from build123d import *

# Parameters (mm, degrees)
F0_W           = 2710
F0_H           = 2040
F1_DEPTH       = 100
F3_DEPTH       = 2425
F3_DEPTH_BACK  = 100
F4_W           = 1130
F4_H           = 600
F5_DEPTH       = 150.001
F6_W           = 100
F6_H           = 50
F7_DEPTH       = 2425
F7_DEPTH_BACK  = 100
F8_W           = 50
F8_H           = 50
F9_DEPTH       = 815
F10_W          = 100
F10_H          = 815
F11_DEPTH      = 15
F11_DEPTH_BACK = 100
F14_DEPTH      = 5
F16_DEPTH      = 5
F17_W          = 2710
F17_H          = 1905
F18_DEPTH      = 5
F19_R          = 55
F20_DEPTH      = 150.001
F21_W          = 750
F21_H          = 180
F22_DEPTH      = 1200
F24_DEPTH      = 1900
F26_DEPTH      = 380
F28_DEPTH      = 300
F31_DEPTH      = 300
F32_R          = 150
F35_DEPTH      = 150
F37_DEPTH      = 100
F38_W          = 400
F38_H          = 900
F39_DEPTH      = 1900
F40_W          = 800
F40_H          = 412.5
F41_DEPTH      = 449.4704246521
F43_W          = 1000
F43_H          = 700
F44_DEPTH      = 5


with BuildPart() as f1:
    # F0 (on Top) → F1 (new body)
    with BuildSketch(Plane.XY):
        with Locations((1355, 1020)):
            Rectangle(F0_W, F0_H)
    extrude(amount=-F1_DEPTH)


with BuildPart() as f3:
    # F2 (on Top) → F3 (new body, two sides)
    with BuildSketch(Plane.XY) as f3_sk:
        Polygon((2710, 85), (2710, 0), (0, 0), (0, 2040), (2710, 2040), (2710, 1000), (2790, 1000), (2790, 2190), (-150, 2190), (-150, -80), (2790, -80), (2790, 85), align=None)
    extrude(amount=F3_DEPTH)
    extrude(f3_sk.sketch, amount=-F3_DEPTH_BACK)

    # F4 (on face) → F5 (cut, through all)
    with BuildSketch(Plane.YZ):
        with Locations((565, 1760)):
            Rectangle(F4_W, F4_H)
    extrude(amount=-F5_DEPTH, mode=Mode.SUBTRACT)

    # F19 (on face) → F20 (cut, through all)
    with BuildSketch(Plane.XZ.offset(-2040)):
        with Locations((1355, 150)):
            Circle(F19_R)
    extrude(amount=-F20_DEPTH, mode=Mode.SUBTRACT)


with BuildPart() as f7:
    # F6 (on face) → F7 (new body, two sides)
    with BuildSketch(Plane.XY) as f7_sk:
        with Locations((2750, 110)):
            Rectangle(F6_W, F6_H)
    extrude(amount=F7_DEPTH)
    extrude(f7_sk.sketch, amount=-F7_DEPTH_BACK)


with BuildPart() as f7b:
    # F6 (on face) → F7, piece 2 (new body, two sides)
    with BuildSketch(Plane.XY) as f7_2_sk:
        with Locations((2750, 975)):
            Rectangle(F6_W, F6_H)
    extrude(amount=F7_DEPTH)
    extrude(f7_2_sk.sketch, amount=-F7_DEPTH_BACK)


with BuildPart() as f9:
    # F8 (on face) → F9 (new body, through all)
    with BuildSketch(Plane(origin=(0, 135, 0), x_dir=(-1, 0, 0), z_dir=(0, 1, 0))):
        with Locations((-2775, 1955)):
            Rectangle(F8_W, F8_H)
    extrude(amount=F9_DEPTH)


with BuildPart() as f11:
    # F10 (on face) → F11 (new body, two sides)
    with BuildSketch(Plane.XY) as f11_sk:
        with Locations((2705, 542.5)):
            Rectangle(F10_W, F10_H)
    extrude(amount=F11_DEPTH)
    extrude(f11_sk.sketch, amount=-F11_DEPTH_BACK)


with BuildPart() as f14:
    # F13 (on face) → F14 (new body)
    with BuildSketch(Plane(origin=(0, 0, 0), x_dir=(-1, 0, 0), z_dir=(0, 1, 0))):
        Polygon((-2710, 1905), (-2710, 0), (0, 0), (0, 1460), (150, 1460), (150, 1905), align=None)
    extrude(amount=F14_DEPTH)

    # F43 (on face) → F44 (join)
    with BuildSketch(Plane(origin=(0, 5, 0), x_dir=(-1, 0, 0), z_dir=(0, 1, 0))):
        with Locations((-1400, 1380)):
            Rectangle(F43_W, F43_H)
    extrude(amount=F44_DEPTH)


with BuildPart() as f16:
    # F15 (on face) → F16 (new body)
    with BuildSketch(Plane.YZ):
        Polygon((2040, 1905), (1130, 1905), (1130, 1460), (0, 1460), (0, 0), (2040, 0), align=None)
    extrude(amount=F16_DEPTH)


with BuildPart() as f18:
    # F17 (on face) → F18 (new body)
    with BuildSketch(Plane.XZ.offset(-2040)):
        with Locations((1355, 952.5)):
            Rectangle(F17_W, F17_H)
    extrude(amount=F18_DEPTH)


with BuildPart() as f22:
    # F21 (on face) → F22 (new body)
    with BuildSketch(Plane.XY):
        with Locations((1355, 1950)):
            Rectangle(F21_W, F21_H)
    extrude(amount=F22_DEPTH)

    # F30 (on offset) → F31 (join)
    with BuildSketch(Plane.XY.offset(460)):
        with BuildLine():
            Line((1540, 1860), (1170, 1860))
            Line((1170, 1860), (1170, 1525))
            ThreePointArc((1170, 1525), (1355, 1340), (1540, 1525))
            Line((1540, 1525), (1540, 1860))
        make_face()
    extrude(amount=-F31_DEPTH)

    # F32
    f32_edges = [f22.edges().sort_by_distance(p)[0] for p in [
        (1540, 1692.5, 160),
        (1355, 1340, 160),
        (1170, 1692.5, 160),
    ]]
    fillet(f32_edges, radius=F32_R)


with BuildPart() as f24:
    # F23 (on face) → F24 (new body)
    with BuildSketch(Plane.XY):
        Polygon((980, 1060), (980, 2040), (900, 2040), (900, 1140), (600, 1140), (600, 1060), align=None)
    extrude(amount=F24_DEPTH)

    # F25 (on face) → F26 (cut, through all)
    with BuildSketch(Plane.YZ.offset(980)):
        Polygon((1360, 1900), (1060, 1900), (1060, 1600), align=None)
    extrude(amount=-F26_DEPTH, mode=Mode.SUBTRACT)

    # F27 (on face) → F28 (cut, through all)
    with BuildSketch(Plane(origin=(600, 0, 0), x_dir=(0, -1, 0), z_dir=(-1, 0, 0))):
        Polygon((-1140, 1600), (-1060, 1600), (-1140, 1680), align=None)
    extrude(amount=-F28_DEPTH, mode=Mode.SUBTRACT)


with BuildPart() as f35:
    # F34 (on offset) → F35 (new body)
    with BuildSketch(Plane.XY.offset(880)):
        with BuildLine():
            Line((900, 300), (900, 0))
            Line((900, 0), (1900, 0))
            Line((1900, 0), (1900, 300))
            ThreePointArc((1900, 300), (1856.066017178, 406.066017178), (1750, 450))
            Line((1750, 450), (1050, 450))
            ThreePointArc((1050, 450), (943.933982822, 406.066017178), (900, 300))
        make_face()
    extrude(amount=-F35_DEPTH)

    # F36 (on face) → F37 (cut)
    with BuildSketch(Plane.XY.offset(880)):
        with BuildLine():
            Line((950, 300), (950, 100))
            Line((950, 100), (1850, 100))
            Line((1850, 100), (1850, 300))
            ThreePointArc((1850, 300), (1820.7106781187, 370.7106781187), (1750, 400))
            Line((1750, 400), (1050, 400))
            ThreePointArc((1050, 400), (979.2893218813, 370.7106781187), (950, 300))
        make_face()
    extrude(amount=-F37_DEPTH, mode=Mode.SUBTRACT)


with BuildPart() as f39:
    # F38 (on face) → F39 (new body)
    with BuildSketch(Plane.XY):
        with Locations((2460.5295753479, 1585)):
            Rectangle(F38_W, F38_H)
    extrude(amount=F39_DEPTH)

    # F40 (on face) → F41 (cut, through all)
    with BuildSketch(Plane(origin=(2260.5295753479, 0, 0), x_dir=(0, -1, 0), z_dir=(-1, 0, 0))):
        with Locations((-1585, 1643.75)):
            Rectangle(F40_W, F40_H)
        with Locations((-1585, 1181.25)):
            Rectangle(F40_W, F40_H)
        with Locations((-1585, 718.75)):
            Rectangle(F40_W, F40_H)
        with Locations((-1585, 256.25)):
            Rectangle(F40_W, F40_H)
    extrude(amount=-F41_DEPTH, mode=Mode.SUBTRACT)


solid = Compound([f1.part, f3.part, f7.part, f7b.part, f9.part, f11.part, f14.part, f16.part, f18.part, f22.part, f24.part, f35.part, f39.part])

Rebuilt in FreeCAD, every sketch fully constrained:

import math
import FreeCAD as App
import Part
import Sketcher

V = App.Vector
Q = App.Units.Quantity


def edges_at(feature, points):
    """Names of the edges that pass closest to the given points."""
    edges = feature.Shape.Edges
    near = lambda p: min(range(len(edges)), key=lambda i: edges[i].distToShape(Part.Vertex(*p))[0])
    return sorted({f"Edge{near(p) + 1}" for p in points})

doc = App.newDocument("Part")
body = doc.addObject("PartDesign::Body", "Body")

sketch1 = body.newObject("Sketcher::SketchObject", "Sketch")
sketch1.AttachmentSupport = (doc.getObject("XY_Plane"), [""])
sketch1.MapMode = "FlatFace"
sketch1.addGeometry(Part.LineSegment(V(0, 2040, 0), V(0, 0, 0)), False)
sketch1.addGeometry(Part.LineSegment(V(0, 0, 0), V(2710, 0, 0)), False)
sketch1.addGeometry(Part.LineSegment(V(2710, 0, 0), V(2710, 2040, 0)), False)
sketch1.addGeometry(Part.LineSegment(V(2710, 2040, 0), V(0, 2040, 0)), False)
sketch1.addConstraint(Sketcher.Constraint("Coincident", 0, 2, 1, 1))
sketch1.addConstraint(Sketcher.Constraint("Coincident", 1, 2, 2, 1))
sketch1.addConstraint(Sketcher.Constraint("Coincident", 2, 2, 3, 1))
sketch1.addConstraint(Sketcher.Constraint("Coincident", 3, 2, 0, 1))
sketch1.addConstraint(Sketcher.Constraint("Vertical", 0))
sketch1.addConstraint(Sketcher.Constraint("Horizontal", 1))
sketch1.addConstraint(Sketcher.Constraint("Vertical", 2))
sketch1.addConstraint(Sketcher.Constraint("Horizontal", 3))
sketch1.addConstraint(Sketcher.Constraint("Coincident", 0, 2, -1, 1))
sketch1.addConstraint(Sketcher.Constraint("DistanceX", 1, 1, 1, 2, Q("2710 mm")))
sketch1.addConstraint(Sketcher.Constraint("DistanceY", 0, 2, 0, 1, Q("2040 mm")))
pad1 = body.newObject("PartDesign::Pad", "Pad")
pad1.Profile = sketch1
pad1.Length = 100
pad1.Reversed = True
body2 = doc.addObject("PartDesign::Body", "Body001")

sketch2 = body2.newObject("Sketcher::SketchObject", "Sketch001")
sketch2.AttachmentSupport = (doc.getObject("XY_Plane001"), [""])
sketch2.MapMode = "FlatFace"
sketch2.addGeometry(Part.LineSegment(V(2710, 85, 0), V(2710, 0, 0)), False)
sketch2.addGeometry(Part.LineSegment(V(2710, 0, 0), V(0, 0, 0)), False)
sketch2.addGeometry(Part.LineSegment(V(0, 0, 0), V(0, 2040, 0)), False)
sketch2.addGeometry(Part.LineSegment(V(0, 2040, 0), V(2710, 2040, 0)), False)
sketch2.addGeometry(Part.LineSegment(V(2710, 2040, 0), V(2710, 1000, 0)), False)
sketch2.addGeometry(Part.LineSegment(V(2710, 1000, 0), V(2790, 1000, 0)), False)
sketch2.addGeometry(Part.LineSegment(V(2790, 1000, 0), V(2790, 2190, 0)), False)
sketch2.addGeometry(Part.LineSegment(V(2790, 2190, 0), V(-150, 2190, 0)), False)
sketch2.addGeometry(Part.LineSegment(V(-150, 2190, 0), V(-150, -80, 0)), False)
sketch2.addGeometry(Part.LineSegment(V(-150, -80, 0), V(2790, -80, 0)), False)
sketch2.addGeometry(Part.LineSegment(V(2790, -80, 0), V(2790, 85, 0)), False)
sketch2.addGeometry(Part.LineSegment(V(2790, 85, 0), V(2710, 85, 0)), False)
sketch2.addConstraint(Sketcher.Constraint("Coincident", 0, 2, 1, 1))
sketch2.addConstraint(Sketcher.Constraint("Coincident", 1, 2, 2, 1))
sketch2.addConstraint(Sketcher.Constraint("Coincident", 2, 2, 3, 1))
sketch2.addConstraint(Sketcher.Constraint("Coincident", 3, 2, 4, 1))
sketch2.addConstraint(Sketcher.Constraint("Coincident", 4, 2, 5, 1))
sketch2.addConstraint(Sketcher.Constraint("Coincident", 5, 2, 6, 1))
sketch2.addConstraint(Sketcher.Constraint("Coincident", 6, 2, 7, 1))
sketch2.addConstraint(Sketcher.Constraint("Coincident", 7, 2, 8, 1))
sketch2.addConstraint(Sketcher.Constraint("Coincident", 8, 2, 9, 1))
sketch2.addConstraint(Sketcher.Constraint("Coincident", 9, 2, 10, 1))
sketch2.addConstraint(Sketcher.Constraint("Coincident", 10, 2, 11, 1))
sketch2.addConstraint(Sketcher.Constraint("Coincident", 11, 2, 0, 1))
sketch2.addConstraint(Sketcher.Constraint("Vertical", 0))
sketch2.addConstraint(Sketcher.Constraint("Horizontal", 1))
sketch2.addConstraint(Sketcher.Constraint("Vertical", 2))
sketch2.addConstraint(Sketcher.Constraint("Horizontal", 3))
sketch2.addConstraint(Sketcher.Constraint("Vertical", 4))
sketch2.addConstraint(Sketcher.Constraint("Horizontal", 5))
sketch2.addConstraint(Sketcher.Constraint("Vertical", 6))
sketch2.addConstraint(Sketcher.Constraint("Horizontal", 7))
sketch2.addConstraint(Sketcher.Constraint("Vertical", 8))
sketch2.addConstraint(Sketcher.Constraint("Horizontal", 9))
sketch2.addConstraint(Sketcher.Constraint("Vertical", 10))
sketch2.addConstraint(Sketcher.Constraint("Horizontal", 11))
sketch2.addConstraint(Sketcher.Constraint("Coincident", 1, 2, -1, 1))
sketch2.addConstraint(Sketcher.Constraint("Vertical", 0, 2, 3, 2))
sketch2.addConstraint(Sketcher.Constraint("Vertical", 6, 2, 9, 2))
sketch2.addConstraint(Sketcher.Constraint("DistanceX", 1, 2, 1, 1, Q("2710 mm")))
sketch2.addConstraint(Sketcher.Constraint("DistanceX", 5, 1, 5, 2, Q("80 mm")))
sketch2.addConstraint(Sketcher.Constraint("DistanceX", 7, 2, 7, 1, Q("2940 mm")))
sketch2.addConstraint(Sketcher.Constraint("DistanceY", 0, 2, 0, 1, Q("85 mm")))
sketch2.addConstraint(Sketcher.Constraint("DistanceY", 2, 1, 2, 2, Q("2040 mm")))
sketch2.addConstraint(Sketcher.Constraint("DistanceY", 4, 2, 4, 1, Q("1040 mm")))
sketch2.addConstraint(Sketcher.Constraint("DistanceY", 6, 1, 6, 2, Q("1190 mm")))
sketch2.addConstraint(Sketcher.Constraint("DistanceY", 8, 2, 8, 1, Q("2270 mm")))
pad2 = body2.newObject("PartDesign::Pad", "Pad001")
pad2.Profile = sketch2
pad2.Type = "TwoLengths"
pad2.Length = 2425
pad2.Length2 = 100

sketch3 = body2.newObject("Sketcher::SketchObject", "Sketch002")
sketch3.AttachmentSupport = (doc.getObject("YZ_Plane001"), [""])
sketch3.MapMode = "FlatFace"
sketch3.addGeometry(Part.LineSegment(V(0, 2060, 0), V(0, 1460, 0)), False)
sketch3.addGeometry(Part.LineSegment(V(0, 1460, 0), V(1130, 1460, 0)), False)
sketch3.addGeometry(Part.LineSegment(V(1130, 1460, 0), V(1130, 2060, 0)), False)
sketch3.addGeometry(Part.LineSegment(V(1130, 2060, 0), V(0, 2060, 0)), False)
sketch3.addConstraint(Sketcher.Constraint("Coincident", 0, 2, 1, 1))
sketch3.addConstraint(Sketcher.Constraint("Coincident", 1, 2, 2, 1))
sketch3.addConstraint(Sketcher.Constraint("Coincident", 2, 2, 3, 1))
sketch3.addConstraint(Sketcher.Constraint("Coincident", 3, 2, 0, 1))
sketch3.addConstraint(Sketcher.Constraint("Vertical", 0))
sketch3.addConstraint(Sketcher.Constraint("Horizontal", 1))
sketch3.addConstraint(Sketcher.Constraint("Vertical", 2))
sketch3.addConstraint(Sketcher.Constraint("Horizontal", 3))
sketch3.addConstraint(Sketcher.Constraint("PointOnObject", 0, 2, -2))
sketch3.addConstraint(Sketcher.Constraint("DistanceX", 1, 1, 1, 2, Q("1130 mm")))
sketch3.addConstraint(Sketcher.Constraint("DistanceY", 0, 2, 0, 1, Q("600 mm")))
sketch3.addConstraint(Sketcher.Constraint("DistanceY", -1, 1, 0, 2, Q("1460 mm")))
pocket1 = body2.newObject("PartDesign::Pocket", "Pocket")
pocket1.Profile = sketch3
pocket1.Type = "ThroughAll"

sketch4 = body2.newObject("Sketcher::SketchObject", "Sketch003")
sketch4.AttachmentSupport = (doc.getObject("XZ_Plane001"), [""])
sketch4.MapMode = "FlatFace"
sketch4.AttachmentOffset = App.Placement(V(0, 0, -2040), App.Rotation())
sketch4.addGeometry(Part.Circle(V(1355, 150, 0), V(0, 0, 1), 55), False)
sketch4.addConstraint(Sketcher.Constraint("Diameter", 0, Q("110 mm")))
sketch4.addConstraint(Sketcher.Constraint("DistanceX", -1, 1, 0, 3, Q("1355 mm")))
sketch4.addConstraint(Sketcher.Constraint("DistanceY", -1, 1, 0, 3, Q("150 mm")))
pocket2 = body2.newObject("PartDesign::Pocket", "Pocket001")
pocket2.Profile = sketch4
pocket2.Type = "ThroughAll"
body3 = doc.addObject("PartDesign::Body", "Body002")

sketch5 = body3.newObject("Sketcher::SketchObject", "Sketch004")
sketch5.AttachmentSupport = (doc.getObject("XY_Plane002"), [""])
sketch5.MapMode = "FlatFace"
sketch5.addGeometry(Part.LineSegment(V(2700, 135, 0), V(2700, 85, 0)), False)
sketch5.addGeometry(Part.LineSegment(V(2700, 85, 0), V(2800, 85, 0)), False)
sketch5.addGeometry(Part.LineSegment(V(2800, 85, 0), V(2800, 135, 0)), False)
sketch5.addGeometry(Part.LineSegment(V(2800, 135, 0), V(2700, 135, 0)), False)
sketch5.addConstraint(Sketcher.Constraint("Coincident", 0, 2, 1, 1))
sketch5.addConstraint(Sketcher.Constraint("Coincident", 1, 2, 2, 1))
sketch5.addConstraint(Sketcher.Constraint("Coincident", 2, 2, 3, 1))
sketch5.addConstraint(Sketcher.Constraint("Coincident", 3, 2, 0, 1))
sketch5.addConstraint(Sketcher.Constraint("Vertical", 0))
sketch5.addConstraint(Sketcher.Constraint("Horizontal", 1))
sketch5.addConstraint(Sketcher.Constraint("Vertical", 2))
sketch5.addConstraint(Sketcher.Constraint("Horizontal", 3))
sketch5.addConstraint(Sketcher.Constraint("DistanceX", 1, 1, 1, 2, Q("100 mm")))
sketch5.addConstraint(Sketcher.Constraint("DistanceY", 0, 2, 0, 1, Q("50 mm")))
sketch5.addConstraint(Sketcher.Constraint("DistanceX", -1, 1, 0, 2, Q("2700 mm")))
sketch5.addConstraint(Sketcher.Constraint("DistanceY", -1, 1, 0, 2, Q("85 mm")))
pad3 = body3.newObject("PartDesign::Pad", "Pad002")
pad3.Profile = sketch5
pad3.Type = "TwoLengths"
pad3.Length = 2425
pad3.Length2 = 100
body4 = doc.addObject("PartDesign::Body", "Body003")

sketch6 = body4.newObject("Sketcher::SketchObject", "Sketch005")
sketch6.AttachmentSupport = (doc.getObject("XY_Plane003"), [""])
sketch6.MapMode = "FlatFace"
sketch6.addGeometry(Part.LineSegment(V(2700, 1000, 0), V(2700, 950, 0)), False)
sketch6.addGeometry(Part.LineSegment(V(2700, 950, 0), V(2800, 950, 0)), False)
sketch6.addGeometry(Part.LineSegment(V(2800, 950, 0), V(2800, 1000, 0)), False)
sketch6.addGeometry(Part.LineSegment(V(2800, 1000, 0), V(2700, 1000, 0)), False)
sketch6.addConstraint(Sketcher.Constraint("Coincident", 0, 2, 1, 1))
sketch6.addConstraint(Sketcher.Constraint("Coincident", 1, 2, 2, 1))
sketch6.addConstraint(Sketcher.Constraint("Coincident", 2, 2, 3, 1))
sketch6.addConstraint(Sketcher.Constraint("Coincident", 3, 2, 0, 1))
sketch6.addConstraint(Sketcher.Constraint("Vertical", 0))
sketch6.addConstraint(Sketcher.Constraint("Horizontal", 1))
sketch6.addConstraint(Sketcher.Constraint("Vertical", 2))
sketch6.addConstraint(Sketcher.Constraint("Horizontal", 3))
sketch6.addConstraint(Sketcher.Constraint("DistanceX", 1, 1, 1, 2, Q("100 mm")))
sketch6.addConstraint(Sketcher.Constraint("DistanceY", 0, 2, 0, 1, Q("50 mm")))
sketch6.addConstraint(Sketcher.Constraint("DistanceX", -1, 1, 0, 2, Q("2700 mm")))
sketch6.addConstraint(Sketcher.Constraint("DistanceY", -1, 1, 0, 2, Q("950 mm")))
pad4 = body4.newObject("PartDesign::Pad", "Pad003")
pad4.Profile = sketch6
pad4.Type = "TwoLengths"
pad4.Length = 2425
pad4.Length2 = 100
body5 = doc.addObject("PartDesign::Body", "Body004")

sketch7 = body5.newObject("Sketcher::SketchObject", "Sketch006")
sketch7.AttachmentSupport = (doc.getObject("XZ_Plane004"), [""])
sketch7.MapMode = "FlatFace"
sketch7.AttachmentOffset = App.Placement(V(0, 0, -135), App.Rotation())
sketch7.addGeometry(Part.LineSegment(V(2800, 1980, 0), V(2800, 1930, 0)), False)
sketch7.addGeometry(Part.LineSegment(V(2800, 1930, 0), V(2750, 1930, 0)), False)
sketch7.addGeometry(Part.LineSegment(V(2750, 1930, 0), V(2750, 1980, 0)), False)
sketch7.addGeometry(Part.LineSegment(V(2750, 1980, 0), V(2800, 1980, 0)), False)
sketch7.addConstraint(Sketcher.Constraint("Coincident", 0, 2, 1, 1))
sketch7.addConstraint(Sketcher.Constraint("Coincident", 1, 2, 2, 1))
sketch7.addConstraint(Sketcher.Constraint("Coincident", 2, 2, 3, 1))
sketch7.addConstraint(Sketcher.Constraint("Coincident", 3, 2, 0, 1))
sketch7.addConstraint(Sketcher.Constraint("Vertical", 0))
sketch7.addConstraint(Sketcher.Constraint("Horizontal", 1))
sketch7.addConstraint(Sketcher.Constraint("Vertical", 2))
sketch7.addConstraint(Sketcher.Constraint("Horizontal", 3))
sketch7.addConstraint(Sketcher.Constraint("Equal", 3, 0))
sketch7.addConstraint(Sketcher.Constraint("DistanceX", 1, 2, 1, 1, Q("50 mm")))
sketch7.addConstraint(Sketcher.Constraint("DistanceX", -1, 1, 0, 2, Q("2800 mm")))
sketch7.addConstraint(Sketcher.Constraint("DistanceY", -1, 1, 0, 2, Q("1930 mm")))
pad5 = body5.newObject("PartDesign::Pad", "Pad004")
pad5.Profile = sketch7
pad5.Length = 815
pad5.Reversed = True
body6 = doc.addObject("PartDesign::Body", "Body005")

sketch8 = body6.newObject("Sketcher::SketchObject", "Sketch007")
sketch8.AttachmentSupport = (doc.getObject("XY_Plane005"), [""])
sketch8.MapMode = "FlatFace"
sketch8.addGeometry(Part.LineSegment(V(2655, 950, 0), V(2655, 135, 0)), False)
sketch8.addGeometry(Part.LineSegment(V(2655, 135, 0), V(2755, 135, 0)), False)
sketch8.addGeometry(Part.LineSegment(V(2755, 135, 0), V(2755, 950, 0)), False)
sketch8.addGeometry(Part.LineSegment(V(2755, 950, 0), V(2655, 950, 0)), False)
sketch8.addConstraint(Sketcher.Constraint("Coincident", 0, 2, 1, 1))
sketch8.addConstraint(Sketcher.Constraint("Coincident", 1, 2, 2, 1))
sketch8.addConstraint(Sketcher.Constraint("Coincident", 2, 2, 3, 1))
sketch8.addConstraint(Sketcher.Constraint("Coincident", 3, 2, 0, 1))
sketch8.addConstraint(Sketcher.Constraint("Vertical", 0))
sketch8.addConstraint(Sketcher.Constraint("Horizontal", 1))
sketch8.addConstraint(Sketcher.Constraint("Vertical", 2))
sketch8.addConstraint(Sketcher.Constraint("Horizontal", 3))
sketch8.addConstraint(Sketcher.Constraint("DistanceX", 1, 1, 1, 2, Q("100 mm")))
sketch8.addConstraint(Sketcher.Constraint("DistanceY", 0, 2, 0, 1, Q("815 mm")))
sketch8.addConstraint(Sketcher.Constraint("DistanceX", -1, 1, 0, 2, Q("2655 mm")))
sketch8.addConstraint(Sketcher.Constraint("DistanceY", -1, 1, 0, 2, Q("135 mm")))
pad6 = body6.newObject("PartDesign::Pad", "Pad005")
pad6.Profile = sketch8
pad6.Type = "TwoLengths"
pad6.Length = 15
pad6.Length2 = 100
body7 = doc.addObject("PartDesign::Body", "Body006")

sketch9 = body7.newObject("Sketcher::SketchObject", "Sketch008")
sketch9.AttachmentSupport = (doc.getObject("XZ_Plane006"), [""])
sketch9.MapMode = "FlatFace"
sketch9.addGeometry(Part.LineSegment(V(2710, 1905, 0), V(2710, 0, 0)), False)
sketch9.addGeometry(Part.LineSegment(V(2710, 0, 0), V(0, 0, 0)), False)
sketch9.addGeometry(Part.LineSegment(V(0, 0, 0), V(0, 1460, 0)), False)
sketch9.addGeometry(Part.LineSegment(V(0, 1460, 0), V(-150, 1460, 0)), False)
sketch9.addGeometry(Part.LineSegment(V(-150, 1460, 0), V(-150, 1905, 0)), False)
sketch9.addGeometry(Part.LineSegment(V(-150, 1905, 0), V(2710, 1905, 0)), False)
sketch9.addConstraint(Sketcher.Constraint("Coincident", 0, 2, 1, 1))
sketch9.addConstraint(Sketcher.Constraint("Coincident", 1, 2, 2, 1))
sketch9.addConstraint(Sketcher.Constraint("Coincident", 2, 2, 3, 1))
sketch9.addConstraint(Sketcher.Constraint("Coincident", 3, 2, 4, 1))
sketch9.addConstraint(Sketcher.Constraint("Coincident", 4, 2, 5, 1))
sketch9.addConstraint(Sketcher.Constraint("Coincident", 5, 2, 0, 1))
sketch9.addConstraint(Sketcher.Constraint("Vertical", 0))
sketch9.addConstraint(Sketcher.Constraint("Horizontal", 1))
sketch9.addConstraint(Sketcher.Constraint("Vertical", 2))
sketch9.addConstraint(Sketcher.Constraint("Horizontal", 3))
sketch9.addConstraint(Sketcher.Constraint("Vertical", 4))
sketch9.addConstraint(Sketcher.Constraint("Horizontal", 5))
sketch9.addConstraint(Sketcher.Constraint("Coincident", 1, 2, -1, 1))
sketch9.addConstraint(Sketcher.Constraint("DistanceX", 1, 2, 1, 1, Q("2710 mm")))
sketch9.addConstraint(Sketcher.Constraint("DistanceX", 3, 2, 3, 1, Q("150 mm")))
sketch9.addConstraint(Sketcher.Constraint("DistanceY", 0, 2, 0, 1, Q("1905 mm")))
sketch9.addConstraint(Sketcher.Constraint("DistanceY", 2, 1, 2, 2, Q("1460 mm")))
pad7 = body7.newObject("PartDesign::Pad", "Pad006")
pad7.Profile = sketch9
pad7.Length = 5
pad7.Reversed = True

sketch10 = body7.newObject("Sketcher::SketchObject", "Sketch009")
sketch10.AttachmentSupport = (doc.getObject("XZ_Plane006"), [""])
sketch10.MapMode = "FlatFace"
sketch10.AttachmentOffset = App.Placement(V(0, 0, -5), App.Rotation())
sketch10.addGeometry(Part.LineSegment(V(1900, 1730, 0), V(1900, 1030, 0)), False)
sketch10.addGeometry(Part.LineSegment(V(1900, 1030, 0), V(900, 1030, 0)), False)
sketch10.addGeometry(Part.LineSegment(V(900, 1030, 0), V(900, 1730, 0)), False)
sketch10.addGeometry(Part.LineSegment(V(900, 1730, 0), V(1900, 1730, 0)), False)
sketch10.addConstraint(Sketcher.Constraint("Coincident", 0, 2, 1, 1))
sketch10.addConstraint(Sketcher.Constraint("Coincident", 1, 2, 2, 1))
sketch10.addConstraint(Sketcher.Constraint("Coincident", 2, 2, 3, 1))
sketch10.addConstraint(Sketcher.Constraint("Coincident", 3, 2, 0, 1))
sketch10.addConstraint(Sketcher.Constraint("Vertical", 0))
sketch10.addConstraint(Sketcher.Constraint("Horizontal", 1))
sketch10.addConstraint(Sketcher.Constraint("Vertical", 2))
sketch10.addConstraint(Sketcher.Constraint("Horizontal", 3))
sketch10.addConstraint(Sketcher.Constraint("DistanceX", 1, 2, 1, 1, Q("1000 mm")))
sketch10.addConstraint(Sketcher.Constraint("DistanceY", 0, 2, 0, 1, Q("700 mm")))
sketch10.addConstraint(Sketcher.Constraint("DistanceX", -1, 1, 0, 2, Q("1900 mm")))
sketch10.addConstraint(Sketcher.Constraint("DistanceY", -1, 1, 0, 2, Q("1030 mm")))
pad8 = body7.newObject("PartDesign::Pad", "Pad007")
pad8.Profile = sketch10
pad8.Length = 5
pad8.Reversed = True
body8 = doc.addObject("PartDesign::Body", "Body007")

sketch11 = body8.newObject("Sketcher::SketchObject", "Sketch010")
sketch11.AttachmentSupport = (doc.getObject("YZ_Plane007"), [""])
sketch11.MapMode = "FlatFace"
sketch11.addGeometry(Part.LineSegment(V(2040, 1905, 0), V(1130, 1905, 0)), False)
sketch11.addGeometry(Part.LineSegment(V(1130, 1905, 0), V(1130, 1460, 0)), False)
sketch11.addGeometry(Part.LineSegment(V(1130, 1460, 0), V(0, 1460, 0)), False)
sketch11.addGeometry(Part.LineSegment(V(0, 1460, 0), V(0, 0, 0)), False)
sketch11.addGeometry(Part.LineSegment(V(0, 0, 0), V(2040, 0, 0)), False)
sketch11.addGeometry(Part.LineSegment(V(2040, 0, 0), V(2040, 1905, 0)), False)
sketch11.addConstraint(Sketcher.Constraint("Coincident", 0, 2, 1, 1))
sketch11.addConstraint(Sketcher.Constraint("Coincident", 1, 2, 2, 1))
sketch11.addConstraint(Sketcher.Constraint("Coincident", 2, 2, 3, 1))
sketch11.addConstraint(Sketcher.Constraint("Coincident", 3, 2, 4, 1))
sketch11.addConstraint(Sketcher.Constraint("Coincident", 4, 2, 5, 1))
sketch11.addConstraint(Sketcher.Constraint("Coincident", 5, 2, 0, 1))
sketch11.addConstraint(Sketcher.Constraint("Horizontal", 0))
sketch11.addConstraint(Sketcher.Constraint("Vertical", 1))
sketch11.addConstraint(Sketcher.Constraint("Horizontal", 2))
sketch11.addConstraint(Sketcher.Constraint("Vertical", 3))
sketch11.addConstraint(Sketcher.Constraint("Horizontal", 4))
sketch11.addConstraint(Sketcher.Constraint("Vertical", 5))
sketch11.addConstraint(Sketcher.Constraint("Coincident", 3, 2, -1, 1))
sketch11.addConstraint(Sketcher.Constraint("DistanceX", 0, 2, 0, 1, Q("910 mm")))
sketch11.addConstraint(Sketcher.Constraint("DistanceX", 2, 2, 2, 1, Q("1130 mm")))
sketch11.addConstraint(Sketcher.Constraint("DistanceY", 1, 2, 1, 1, Q("445 mm")))
sketch11.addConstraint(Sketcher.Constraint("DistanceY", 3, 2, 3, 1, Q("1460 mm")))
pad9 = body8.newObject("PartDesign::Pad", "Pad008")
pad9.Profile = sketch11
pad9.Length = 5
body9 = doc.addObject("PartDesign::Body", "Body008")

sketch12 = body9.newObject("Sketcher::SketchObject", "Sketch011")
sketch12.AttachmentSupport = (doc.getObject("XZ_Plane008"), [""])
sketch12.MapMode = "FlatFace"
sketch12.AttachmentOffset = App.Placement(V(0, 0, -2040), App.Rotation())
sketch12.addGeometry(Part.LineSegment(V(0, 1905, 0), V(0, 0, 0)), False)
sketch12.addGeometry(Part.LineSegment(V(0, 0, 0), V(2710, 0, 0)), False)
sketch12.addGeometry(Part.LineSegment(V(2710, 0, 0), V(2710, 1905, 0)), False)
sketch12.addGeometry(Part.LineSegment(V(2710, 1905, 0), V(0, 1905, 0)), False)
sketch12.addConstraint(Sketcher.Constraint("Coincident", 0, 2, 1, 1))
sketch12.addConstraint(Sketcher.Constraint("Coincident", 1, 2, 2, 1))
sketch12.addConstraint(Sketcher.Constraint("Coincident", 2, 2, 3, 1))
sketch12.addConstraint(Sketcher.Constraint("Coincident", 3, 2, 0, 1))
sketch12.addConstraint(Sketcher.Constraint("Vertical", 0))
sketch12.addConstraint(Sketcher.Constraint("Horizontal", 1))
sketch12.addConstraint(Sketcher.Constraint("Vertical", 2))
sketch12.addConstraint(Sketcher.Constraint("Horizontal", 3))
sketch12.addConstraint(Sketcher.Constraint("Coincident", 0, 2, -1, 1))
sketch12.addConstraint(Sketcher.Constraint("DistanceX", 1, 1, 1, 2, Q("2710 mm")))
sketch12.addConstraint(Sketcher.Constraint("DistanceY", 0, 2, 0, 1, Q("1905 mm")))
pad10 = body9.newObject("PartDesign::Pad", "Pad009")
pad10.Profile = sketch12
pad10.Length = 5
body10 = doc.addObject("PartDesign::Body", "Body009")

sketch13 = body10.newObject("Sketcher::SketchObject", "Sketch012")
sketch13.AttachmentSupport = (doc.getObject("XY_Plane009"), [""])
sketch13.MapMode = "FlatFace"
sketch13.addGeometry(Part.LineSegment(V(980, 2040, 0), V(980, 1860, 0)), False)
sketch13.addGeometry(Part.LineSegment(V(980, 1860, 0), V(1730, 1860, 0)), False)
sketch13.addGeometry(Part.LineSegment(V(1730, 1860, 0), V(1730, 2040, 0)), False)
sketch13.addGeometry(Part.LineSegment(V(1730, 2040, 0), V(980, 2040, 0)), False)
sketch13.addConstraint(Sketcher.Constraint("Coincident", 0, 2, 1, 1))
sketch13.addConstraint(Sketcher.Constraint("Coincident", 1, 2, 2, 1))
sketch13.addConstraint(Sketcher.Constraint("Coincident", 2, 2, 3, 1))
sketch13.addConstraint(Sketcher.Constraint("Coincident", 3, 2, 0, 1))
sketch13.addConstraint(Sketcher.Constraint("Vertical", 0))
sketch13.addConstraint(Sketcher.Constraint("Horizontal", 1))
sketch13.addConstraint(Sketcher.Constraint("Vertical", 2))
sketch13.addConstraint(Sketcher.Constraint("Horizontal", 3))
sketch13.addConstraint(Sketcher.Constraint("DistanceX", 1, 1, 1, 2, Q("750 mm")))
sketch13.addConstraint(Sketcher.Constraint("DistanceY", 0, 2, 0, 1, Q("180 mm")))
sketch13.addConstraint(Sketcher.Constraint("DistanceX", -1, 1, 0, 2, Q("980 mm")))
sketch13.addConstraint(Sketcher.Constraint("DistanceY", -1, 1, 0, 2, Q("1860 mm")))
pad11 = body10.newObject("PartDesign::Pad", "Pad010")
pad11.Profile = sketch13
pad11.Length = 1200

sketch14 = body10.newObject("Sketcher::SketchObject", "Sketch013")
sketch14.AttachmentSupport = (doc.getObject("XY_Plane009"), [""])
sketch14.MapMode = "FlatFace"
sketch14.AttachmentOffset = App.Placement(V(0, 0, 460), App.Rotation())
sketch14.addGeometry(Part.LineSegment(V(1540, 1860, 0), V(1170, 1860, 0)), False)
sketch14.addGeometry(Part.LineSegment(V(1170, 1860, 0), V(1170, 1525, 0)), False)
sketch14.addGeometry(Part.ArcOfCircle(Part.Circle(V(1355, 1525, 0), V(0, 0, 1), 185), math.radians(180), math.radians(360)), False)
sketch14.addGeometry(Part.LineSegment(V(1540, 1525, 0), V(1540, 1860, 0)), False)
sketch14.addConstraint(Sketcher.Constraint("Coincident", 0, 2, 1, 1))
sketch14.addConstraint(Sketcher.Constraint("Tangent", 1, 2, 2, 1))
sketch14.addConstraint(Sketcher.Constraint("Tangent", 2, 2, 3, 1))
sketch14.addConstraint(Sketcher.Constraint("Coincident", 3, 2, 0, 1))
sketch14.addConstraint(Sketcher.Constraint("Horizontal", 0))
sketch14.addConstraint(Sketcher.Constraint("Vertical", 1))
sketch14.addConstraint(Sketcher.Constraint("Vertical", 3))
sketch14.addConstraint(Sketcher.Constraint("Radius", 2, Q("185 mm")))
sketch14.addConstraint(Sketcher.Constraint("DistanceY", 1, 2, 1, 1, Q("335 mm")))
sketch14.addConstraint(Sketcher.Constraint("DistanceX", -1, 1, 2, 3, Q("1355 mm")))
sketch14.addConstraint(Sketcher.Constraint("DistanceY", -1, 1, 2, 3, Q("1525 mm")))
pad12 = body10.newObject("PartDesign::Pad", "Pad011")
pad12.Profile = sketch14
pad12.Length = 300
pad12.Reversed = True
doc.recompute()

fillet = body10.newObject("PartDesign::Fillet", "Fillet")
fillet.Base = (pad12, edges_at(pad12, [(1540, 1692.5, 160), (1355, 1340, 160), (1170, 1692.5, 160)]))
fillet.Radius = 150
body11 = doc.addObject("PartDesign::Body", "Body010")

sketch15 = body11.newObject("Sketcher::SketchObject", "Sketch014")
sketch15.AttachmentSupport = (doc.getObject("XY_Plane010"), [""])
sketch15.MapMode = "FlatFace"
sketch15.addGeometry(Part.LineSegment(V(980, 1060, 0), V(980, 2040, 0)), False)
sketch15.addGeometry(Part.LineSegment(V(980, 2040, 0), V(900, 2040, 0)), False)
sketch15.addGeometry(Part.LineSegment(V(900, 2040, 0), V(900, 1140, 0)), False)
sketch15.addGeometry(Part.LineSegment(V(900, 1140, 0), V(600, 1140, 0)), False)
sketch15.addGeometry(Part.LineSegment(V(600, 1140, 0), V(600, 1060, 0)), False)
sketch15.addGeometry(Part.LineSegment(V(600, 1060, 0), V(980, 1060, 0)), False)
sketch15.addConstraint(Sketcher.Constraint("Coincident", 0, 2, 1, 1))
sketch15.addConstraint(Sketcher.Constraint("Coincident", 1, 2, 2, 1))
sketch15.addConstraint(Sketcher.Constraint("Coincident", 2, 2, 3, 1))
sketch15.addConstraint(Sketcher.Constraint("Coincident", 3, 2, 4, 1))
sketch15.addConstraint(Sketcher.Constraint("Coincident", 4, 2, 5, 1))
sketch15.addConstraint(Sketcher.Constraint("Coincident", 5, 2, 0, 1))
sketch15.addConstraint(Sketcher.Constraint("Vertical", 0))
sketch15.addConstraint(Sketcher.Constraint("Horizontal", 1))
sketch15.addConstraint(Sketcher.Constraint("Vertical", 2))
sketch15.addConstraint(Sketcher.Constraint("Horizontal", 3))
sketch15.addConstraint(Sketcher.Constraint("Vertical", 4))
sketch15.addConstraint(Sketcher.Constraint("Horizontal", 5))
sketch15.addConstraint(Sketcher.Constraint("Equal", 1, 4))
sketch15.addConstraint(Sketcher.Constraint("DistanceX", 1, 2, 1, 1, Q("80 mm")))
sketch15.addConstraint(Sketcher.Constraint("DistanceX", 3, 2, 3, 1, Q("300 mm")))
sketch15.addConstraint(Sketcher.Constraint("DistanceY", 0, 1, 0, 2, Q("980 mm")))
sketch15.addConstraint(Sketcher.Constraint("DistanceX", -1, 1, 0, 2, Q("980 mm")))
sketch15.addConstraint(Sketcher.Constraint("DistanceY", -1, 1, 0, 2, Q("2040 mm")))
pad13 = body11.newObject("PartDesign::Pad", "Pad012")
pad13.Profile = sketch15
pad13.Length = 1900

sketch16 = body11.newObject("Sketcher::SketchObject", "Sketch015")
sketch16.AttachmentSupport = (doc.getObject("YZ_Plane010"), [""])
sketch16.MapMode = "FlatFace"
sketch16.AttachmentOffset = App.Placement(V(0, 0, 980), App.Rotation())
sketch16.addGeometry(Part.LineSegment(V(1360, 1900, 0), V(1060, 1900, 0)), False)
sketch16.addGeometry(Part.LineSegment(V(1060, 1900, 0), V(1060, 1600, 0)), False)
sketch16.addGeometry(Part.LineSegment(V(1060, 1600, 0), V(1360, 1900, 0)), False)
sketch16.addConstraint(Sketcher.Constraint("Coincident", 0, 2, 1, 1))
sketch16.addConstraint(Sketcher.Constraint("Coincident", 1, 2, 2, 1))
sketch16.addConstraint(Sketcher.Constraint("Coincident", 2, 2, 0, 1))
sketch16.addConstraint(Sketcher.Constraint("Horizontal", 0))
sketch16.addConstraint(Sketcher.Constraint("Vertical", 1))
sketch16.addConstraint(Sketcher.Constraint("Equal", 0, 1))
sketch16.addConstraint(Sketcher.Constraint("DistanceX", 0, 2, 0, 1, Q("300 mm")))
sketch16.addConstraint(Sketcher.Constraint("DistanceX", -1, 1, 0, 2, Q("1060 mm")))
sketch16.addConstraint(Sketcher.Constraint("DistanceY", -1, 1, 0, 2, Q("1900 mm")))
pocket3 = body11.newObject("PartDesign::Pocket", "Pocket002")
pocket3.Profile = sketch16
pocket3.Type = "ThroughAll"

sketch17 = body11.newObject("Sketcher::SketchObject", "Sketch016")
sketch17.AttachmentSupport = (doc.getObject("YZ_Plane010"), [""])
sketch17.MapMode = "FlatFace"
sketch17.AttachmentOffset = App.Placement(V(0, 0, 600), App.Rotation())
sketch17.addGeometry(Part.LineSegment(V(1140, 1600, 0), V(1060, 1600, 0)), False)
sketch17.addGeometry(Part.LineSegment(V(1060, 1600, 0), V(1140, 1680, 0)), False)
sketch17.addGeometry(Part.LineSegment(V(1140, 1680, 0), V(1140, 1600, 0)), False)
sketch17.addConstraint(Sketcher.Constraint("Coincident", 0, 2, 1, 1))
sketch17.addConstraint(Sketcher.Constraint("Coincident", 1, 2, 2, 1))
sketch17.addConstraint(Sketcher.Constraint("Coincident", 2, 2, 0, 1))
sketch17.addConstraint(Sketcher.Constraint("Horizontal", 0))
sketch17.addConstraint(Sketcher.Constraint("Vertical", 2))
sketch17.addConstraint(Sketcher.Constraint("Equal", 0, 2))
sketch17.addConstraint(Sketcher.Constraint("DistanceX", 0, 2, 0, 1, Q("80 mm")))
sketch17.addConstraint(Sketcher.Constraint("DistanceX", -1, 1, 0, 2, Q("1060 mm")))
sketch17.addConstraint(Sketcher.Constraint("DistanceY", -1, 1, 0, 2, Q("1600 mm")))
pocket4 = body11.newObject("PartDesign::Pocket", "Pocket003")
pocket4.Profile = sketch17
pocket4.Length = 300
pocket4.Reversed = True
body12 = doc.addObject("PartDesign::Body", "Body011")

sketch18 = body12.newObject("Sketcher::SketchObject", "Sketch017")
sketch18.AttachmentSupport = (doc.getObject("XY_Plane011"), [""])
sketch18.MapMode = "FlatFace"
sketch18.AttachmentOffset = App.Placement(V(0, 0, 880), App.Rotation())
sketch18.addGeometry(Part.LineSegment(V(900, 300, 0), V(900, 0, 0)), False)
sketch18.addGeometry(Part.LineSegment(V(900, 0, 0), V(1900, 0, 0)), False)
sketch18.addGeometry(Part.LineSegment(V(1900, 0, 0), V(1900, 300, 0)), False)
sketch18.addGeometry(Part.ArcOfCircle(Part.Circle(V(1750, 300, 0), V(0, 0, 1), 150), math.radians(0), math.radians(90)), False)
sketch18.addGeometry(Part.LineSegment(V(1750, 450, 0), V(1050, 450, 0)), False)
sketch18.addGeometry(Part.ArcOfCircle(Part.Circle(V(1050, 300, 0), V(0, 0, 1), 150), math.radians(90), math.radians(180)), False)
sketch18.addConstraint(Sketcher.Constraint("Coincident", 0, 2, 1, 1))
sketch18.addConstraint(Sketcher.Constraint("Coincident", 1, 2, 2, 1))
sketch18.addConstraint(Sketcher.Constraint("Tangent", 2, 2, 3, 1))
sketch18.addConstraint(Sketcher.Constraint("Tangent", 3, 2, 4, 1))
sketch18.addConstraint(Sketcher.Constraint("Tangent", 4, 2, 5, 1))
sketch18.addConstraint(Sketcher.Constraint("Tangent", 5, 2, 0, 1))
sketch18.addConstraint(Sketcher.Constraint("Vertical", 0))
sketch18.addConstraint(Sketcher.Constraint("Horizontal", 1))
sketch18.addConstraint(Sketcher.Constraint("Vertical", 2))
sketch18.addConstraint(Sketcher.Constraint("Horizontal", 4))
sketch18.addConstraint(Sketcher.Constraint("Equal", 3, 5))
sketch18.addConstraint(Sketcher.Constraint("PointOnObject", 0, 2, -1))
sketch18.addConstraint(Sketcher.Constraint("Radius", 3, Q("150 mm")))
sketch18.addConstraint(Sketcher.Constraint("DistanceX", 1, 1, 1, 2, Q("1000 mm")))
sketch18.addConstraint(Sketcher.Constraint("DistanceY", 0, 2, 0, 1, Q("300 mm")))
sketch18.addConstraint(Sketcher.Constraint("DistanceX", -1, 1, 3, 3, Q("1750 mm")))
pad14 = body12.newObject("PartDesign::Pad", "Pad013")
pad14.Profile = sketch18
pad14.Length = 150
pad14.Reversed = True

sketch19 = body12.newObject("Sketcher::SketchObject", "Sketch018")
sketch19.AttachmentSupport = (doc.getObject("XY_Plane011"), [""])
sketch19.MapMode = "FlatFace"
sketch19.AttachmentOffset = App.Placement(V(0, 0, 880), App.Rotation())
sketch19.addGeometry(Part.LineSegment(V(950, 300, 0), V(950, 100, 0)), False)
sketch19.addGeometry(Part.LineSegment(V(950, 100, 0), V(1850, 100, 0)), False)
sketch19.addGeometry(Part.LineSegment(V(1850, 100, 0), V(1850, 300, 0)), False)
sketch19.addGeometry(Part.ArcOfCircle(Part.Circle(V(1750, 300, 0), V(0, 0, 1), 100), math.radians(0), math.radians(90)), False)
sketch19.addGeometry(Part.LineSegment(V(1750, 400, 0), V(1050, 400, 0)), False)
sketch19.addGeometry(Part.ArcOfCircle(Part.Circle(V(1050, 300, 0), V(0, 0, 1), 100), math.radians(90), math.radians(180)), False)
sketch19.addConstraint(Sketcher.Constraint("Coincident", 0, 2, 1, 1))
sketch19.addConstraint(Sketcher.Constraint("Coincident", 1, 2, 2, 1))
sketch19.addConstraint(Sketcher.Constraint("Tangent", 2, 2, 3, 1))
sketch19.addConstraint(Sketcher.Constraint("Tangent", 3, 2, 4, 1))
sketch19.addConstraint(Sketcher.Constraint("Tangent", 4, 2, 5, 1))
sketch19.addConstraint(Sketcher.Constraint("Tangent", 5, 2, 0, 1))
sketch19.addConstraint(Sketcher.Constraint("Vertical", 0))
sketch19.addConstraint(Sketcher.Constraint("Horizontal", 1))
sketch19.addConstraint(Sketcher.Constraint("Vertical", 2))
sketch19.addConstraint(Sketcher.Constraint("Horizontal", 4))
sketch19.addConstraint(Sketcher.Constraint("Equal", 3, 5))
sketch19.addConstraint(Sketcher.Constraint("Radius", 3, Q("100 mm")))
sketch19.addConstraint(Sketcher.Constraint("DistanceX", 1, 1, 1, 2, Q("900 mm")))
sketch19.addConstraint(Sketcher.Constraint("DistanceY", 0, 2, 0, 1, Q("200 mm")))
sketch19.addConstraint(Sketcher.Constraint("DistanceX", -1, 1, 3, 3, Q("1750 mm")))
sketch19.addConstraint(Sketcher.Constraint("DistanceY", -1, 1, 3, 3, Q("300 mm")))
pocket5 = body12.newObject("PartDesign::Pocket", "Pocket004")
pocket5.Profile = sketch19
pocket5.Length = 100
body13 = doc.addObject("PartDesign::Body", "Body012")

sketch20 = body13.newObject("Sketcher::SketchObject", "Sketch019")
sketch20.AttachmentSupport = (doc.getObject("XY_Plane012"), [""])
sketch20.MapMode = "FlatFace"
sketch20.addGeometry(Part.LineSegment(V(2260.529575, 2035, 0), V(2260.529575, 1135, 0)), False)
sketch20.addGeometry(Part.LineSegment(V(2260.529575, 1135, 0), V(2660.529575, 1135, 0)), False)
sketch20.addGeometry(Part.LineSegment(V(2660.529575, 1135, 0), V(2660.529575, 2035, 0)), False)
sketch20.addGeometry(Part.LineSegment(V(2660.529575, 2035, 0), V(2260.529575, 2035, 0)), False)
sketch20.addConstraint(Sketcher.Constraint("Coincident", 0, 2, 1, 1))
sketch20.addConstraint(Sketcher.Constraint("Coincident", 1, 2, 2, 1))
sketch20.addConstraint(Sketcher.Constraint("Coincident", 2, 2, 3, 1))
sketch20.addConstraint(Sketcher.Constraint("Coincident", 3, 2, 0, 1))
sketch20.addConstraint(Sketcher.Constraint("Vertical", 0))
sketch20.addConstraint(Sketcher.Constraint("Horizontal", 1))
sketch20.addConstraint(Sketcher.Constraint("Vertical", 2))
sketch20.addConstraint(Sketcher.Constraint("Horizontal", 3))
sketch20.addConstraint(Sketcher.Constraint("DistanceX", 1, 1, 1, 2, Q("400 mm")))
sketch20.addConstraint(Sketcher.Constraint("DistanceY", 0, 2, 0, 1, Q("900 mm")))
sketch20.addConstraint(Sketcher.Constraint("DistanceY", -1, 1, 0, 2, Q("1135 mm")))
sketch20.addConstraint(Sketcher.Constraint("DistanceX", -1, 1, 0, 2, Q("2260.529575 mm")))
pad15 = body13.newObject("PartDesign::Pad", "Pad014")
pad15.Profile = sketch20
pad15.Length = 1900

sketch21 = body13.newObject("Sketcher::SketchObject", "Sketch020")
sketch21.AttachmentSupport = (doc.getObject("YZ_Plane012"), [""])
sketch21.MapMode = "FlatFace"
sketch21.AttachmentOffset = App.Placement(V(0, 0, 2260.529575), App.Rotation())
sketch21.addGeometry(Part.LineSegment(V(1985, 1850, 0), V(1985, 1437.5, 0)), False)
sketch21.addGeometry(Part.LineSegment(V(1985, 1437.5, 0), V(1185, 1437.5, 0)), False)
sketch21.addGeometry(Part.LineSegment(V(1185, 1437.5, 0), V(1185, 1850, 0)), False)
sketch21.addGeometry(Part.LineSegment(V(1185, 1850, 0), V(1985, 1850, 0)), False)
sketch21.addGeometry(Part.LineSegment(V(1985, 1387.5, 0), V(1985, 975, 0)), False)
sketch21.addGeometry(Part.LineSegment(V(1985, 975, 0), V(1185, 975, 0)), False)
sketch21.addGeometry(Part.LineSegment(V(1185, 975, 0), V(1185, 1387.5, 0)), False)
sketch21.addGeometry(Part.LineSegment(V(1185, 1387.5, 0), V(1985, 1387.5, 0)), False)
sketch21.addGeometry(Part.LineSegment(V(1985, 925, 0), V(1985, 512.5, 0)), False)
sketch21.addGeometry(Part.LineSegment(V(1985, 512.5, 0), V(1185, 512.5, 0)), False)
sketch21.addGeometry(Part.LineSegment(V(1185, 512.5, 0), V(1185, 925, 0)), False)
sketch21.addGeometry(Part.LineSegment(V(1185, 925, 0), V(1985, 925, 0)), False)
sketch21.addGeometry(Part.LineSegment(V(1985, 462.5, 0), V(1985, 50, 0)), False)
sketch21.addGeometry(Part.LineSegment(V(1985, 50, 0), V(1185, 50, 0)), False)
sketch21.addGeometry(Part.LineSegment(V(1185, 50, 0), V(1185, 462.5, 0)), False)
sketch21.addGeometry(Part.LineSegment(V(1185, 462.5, 0), V(1985, 462.5, 0)), False)
sketch21.addConstraint(Sketcher.Constraint("Coincident", 0, 2, 1, 1))
sketch21.addConstraint(Sketcher.Constraint("Coincident", 1, 2, 2, 1))
sketch21.addConstraint(Sketcher.Constraint("Coincident", 2, 2, 3, 1))
sketch21.addConstraint(Sketcher.Constraint("Coincident", 3, 2, 0, 1))
sketch21.addConstraint(Sketcher.Constraint("Coincident", 4, 2, 5, 1))
sketch21.addConstraint(Sketcher.Constraint("Coincident", 5, 2, 6, 1))
sketch21.addConstraint(Sketcher.Constraint("Coincident", 6, 2, 7, 1))
sketch21.addConstraint(Sketcher.Constraint("Coincident", 7, 2, 4, 1))
sketch21.addConstraint(Sketcher.Constraint("Coincident", 8, 2, 9, 1))
sketch21.addConstraint(Sketcher.Constraint("Coincident", 9, 2, 10, 1))
sketch21.addConstraint(Sketcher.Constraint("Coincident", 10, 2, 11, 1))
sketch21.addConstraint(Sketcher.Constraint("Coincident", 11, 2, 8, 1))
sketch21.addConstraint(Sketcher.Constraint("Coincident", 12, 2, 13, 1))
sketch21.addConstraint(Sketcher.Constraint("Coincident", 13, 2, 14, 1))
sketch21.addConstraint(Sketcher.Constraint("Coincident", 14, 2, 15, 1))
sketch21.addConstraint(Sketcher.Constraint("Coincident", 15, 2, 12, 1))
sketch21.addConstraint(Sketcher.Constraint("Vertical", 0))
sketch21.addConstraint(Sketcher.Constraint("Horizontal", 1))
sketch21.addConstraint(Sketcher.Constraint("Vertical", 2))
sketch21.addConstraint(Sketcher.Constraint("Horizontal", 3))
sketch21.addConstraint(Sketcher.Constraint("Vertical", 4))
sketch21.addConstraint(Sketcher.Constraint("Horizontal", 5))
sketch21.addConstraint(Sketcher.Constraint("Vertical", 6))
sketch21.addConstraint(Sketcher.Constraint("Horizontal", 7))
sketch21.addConstraint(Sketcher.Constraint("Vertical", 8))
sketch21.addConstraint(Sketcher.Constraint("Horizontal", 9))
sketch21.addConstraint(Sketcher.Constraint("Vertical", 10))
sketch21.addConstraint(Sketcher.Constraint("Horizontal", 11))
sketch21.addConstraint(Sketcher.Constraint("Vertical", 12))
sketch21.addConstraint(Sketcher.Constraint("Horizontal", 13))
sketch21.addConstraint(Sketcher.Constraint("Vertical", 14))
sketch21.addConstraint(Sketcher.Constraint("Horizontal", 15))
sketch21.addConstraint(Sketcher.Constraint("Vertical", 3, 2, 4, 2))
sketch21.addConstraint(Sketcher.Constraint("Vertical", 2, 2, 5, 2))
sketch21.addConstraint(Sketcher.Constraint("Vertical", 7, 2, 8, 2))
sketch21.addConstraint(Sketcher.Constraint("Vertical", 6, 2, 9, 2))
sketch21.addConstraint(Sketcher.Constraint("Vertical", 11, 2, 12, 2))
sketch21.addConstraint(Sketcher.Constraint("Vertical", 10, 2, 13, 2))
sketch21.addConstraint(Sketcher.Constraint("Equal", 2, 4))
sketch21.addConstraint(Sketcher.Constraint("Equal", 6, 8))
sketch21.addConstraint(Sketcher.Constraint("Equal", 10, 12))
sketch21.addConstraint(Sketcher.Constraint("DistanceX", 1, 2, 1, 1, Q("800 mm")))
sketch21.addConstraint(Sketcher.Constraint("DistanceY", 0, 2, 0, 1, Q("412.5 mm")))
sketch21.addConstraint(Sketcher.Constraint("DistanceX", -1, 1, 0, 2, Q("1985 mm")))
sketch21.addConstraint(Sketcher.Constraint("DistanceY", -1, 1, 2, 2, Q("1850 mm")))
sketch21.addConstraint(Sketcher.Constraint("DistanceY", -1, 1, 4, 2, Q("975 mm")))
sketch21.addConstraint(Sketcher.Constraint("DistanceY", -1, 1, 10, 2, Q("925 mm")))
sketch21.addConstraint(Sketcher.Constraint("DistanceY", -1, 1, 12, 2, Q("50 mm")))
pocket6 = body13.newObject("PartDesign::Pocket", "Pocket005")
pocket6.Profile = sketch21
pocket6.Type = "ThroughAll"
pocket6.Reversed = True

doc.recompute()
